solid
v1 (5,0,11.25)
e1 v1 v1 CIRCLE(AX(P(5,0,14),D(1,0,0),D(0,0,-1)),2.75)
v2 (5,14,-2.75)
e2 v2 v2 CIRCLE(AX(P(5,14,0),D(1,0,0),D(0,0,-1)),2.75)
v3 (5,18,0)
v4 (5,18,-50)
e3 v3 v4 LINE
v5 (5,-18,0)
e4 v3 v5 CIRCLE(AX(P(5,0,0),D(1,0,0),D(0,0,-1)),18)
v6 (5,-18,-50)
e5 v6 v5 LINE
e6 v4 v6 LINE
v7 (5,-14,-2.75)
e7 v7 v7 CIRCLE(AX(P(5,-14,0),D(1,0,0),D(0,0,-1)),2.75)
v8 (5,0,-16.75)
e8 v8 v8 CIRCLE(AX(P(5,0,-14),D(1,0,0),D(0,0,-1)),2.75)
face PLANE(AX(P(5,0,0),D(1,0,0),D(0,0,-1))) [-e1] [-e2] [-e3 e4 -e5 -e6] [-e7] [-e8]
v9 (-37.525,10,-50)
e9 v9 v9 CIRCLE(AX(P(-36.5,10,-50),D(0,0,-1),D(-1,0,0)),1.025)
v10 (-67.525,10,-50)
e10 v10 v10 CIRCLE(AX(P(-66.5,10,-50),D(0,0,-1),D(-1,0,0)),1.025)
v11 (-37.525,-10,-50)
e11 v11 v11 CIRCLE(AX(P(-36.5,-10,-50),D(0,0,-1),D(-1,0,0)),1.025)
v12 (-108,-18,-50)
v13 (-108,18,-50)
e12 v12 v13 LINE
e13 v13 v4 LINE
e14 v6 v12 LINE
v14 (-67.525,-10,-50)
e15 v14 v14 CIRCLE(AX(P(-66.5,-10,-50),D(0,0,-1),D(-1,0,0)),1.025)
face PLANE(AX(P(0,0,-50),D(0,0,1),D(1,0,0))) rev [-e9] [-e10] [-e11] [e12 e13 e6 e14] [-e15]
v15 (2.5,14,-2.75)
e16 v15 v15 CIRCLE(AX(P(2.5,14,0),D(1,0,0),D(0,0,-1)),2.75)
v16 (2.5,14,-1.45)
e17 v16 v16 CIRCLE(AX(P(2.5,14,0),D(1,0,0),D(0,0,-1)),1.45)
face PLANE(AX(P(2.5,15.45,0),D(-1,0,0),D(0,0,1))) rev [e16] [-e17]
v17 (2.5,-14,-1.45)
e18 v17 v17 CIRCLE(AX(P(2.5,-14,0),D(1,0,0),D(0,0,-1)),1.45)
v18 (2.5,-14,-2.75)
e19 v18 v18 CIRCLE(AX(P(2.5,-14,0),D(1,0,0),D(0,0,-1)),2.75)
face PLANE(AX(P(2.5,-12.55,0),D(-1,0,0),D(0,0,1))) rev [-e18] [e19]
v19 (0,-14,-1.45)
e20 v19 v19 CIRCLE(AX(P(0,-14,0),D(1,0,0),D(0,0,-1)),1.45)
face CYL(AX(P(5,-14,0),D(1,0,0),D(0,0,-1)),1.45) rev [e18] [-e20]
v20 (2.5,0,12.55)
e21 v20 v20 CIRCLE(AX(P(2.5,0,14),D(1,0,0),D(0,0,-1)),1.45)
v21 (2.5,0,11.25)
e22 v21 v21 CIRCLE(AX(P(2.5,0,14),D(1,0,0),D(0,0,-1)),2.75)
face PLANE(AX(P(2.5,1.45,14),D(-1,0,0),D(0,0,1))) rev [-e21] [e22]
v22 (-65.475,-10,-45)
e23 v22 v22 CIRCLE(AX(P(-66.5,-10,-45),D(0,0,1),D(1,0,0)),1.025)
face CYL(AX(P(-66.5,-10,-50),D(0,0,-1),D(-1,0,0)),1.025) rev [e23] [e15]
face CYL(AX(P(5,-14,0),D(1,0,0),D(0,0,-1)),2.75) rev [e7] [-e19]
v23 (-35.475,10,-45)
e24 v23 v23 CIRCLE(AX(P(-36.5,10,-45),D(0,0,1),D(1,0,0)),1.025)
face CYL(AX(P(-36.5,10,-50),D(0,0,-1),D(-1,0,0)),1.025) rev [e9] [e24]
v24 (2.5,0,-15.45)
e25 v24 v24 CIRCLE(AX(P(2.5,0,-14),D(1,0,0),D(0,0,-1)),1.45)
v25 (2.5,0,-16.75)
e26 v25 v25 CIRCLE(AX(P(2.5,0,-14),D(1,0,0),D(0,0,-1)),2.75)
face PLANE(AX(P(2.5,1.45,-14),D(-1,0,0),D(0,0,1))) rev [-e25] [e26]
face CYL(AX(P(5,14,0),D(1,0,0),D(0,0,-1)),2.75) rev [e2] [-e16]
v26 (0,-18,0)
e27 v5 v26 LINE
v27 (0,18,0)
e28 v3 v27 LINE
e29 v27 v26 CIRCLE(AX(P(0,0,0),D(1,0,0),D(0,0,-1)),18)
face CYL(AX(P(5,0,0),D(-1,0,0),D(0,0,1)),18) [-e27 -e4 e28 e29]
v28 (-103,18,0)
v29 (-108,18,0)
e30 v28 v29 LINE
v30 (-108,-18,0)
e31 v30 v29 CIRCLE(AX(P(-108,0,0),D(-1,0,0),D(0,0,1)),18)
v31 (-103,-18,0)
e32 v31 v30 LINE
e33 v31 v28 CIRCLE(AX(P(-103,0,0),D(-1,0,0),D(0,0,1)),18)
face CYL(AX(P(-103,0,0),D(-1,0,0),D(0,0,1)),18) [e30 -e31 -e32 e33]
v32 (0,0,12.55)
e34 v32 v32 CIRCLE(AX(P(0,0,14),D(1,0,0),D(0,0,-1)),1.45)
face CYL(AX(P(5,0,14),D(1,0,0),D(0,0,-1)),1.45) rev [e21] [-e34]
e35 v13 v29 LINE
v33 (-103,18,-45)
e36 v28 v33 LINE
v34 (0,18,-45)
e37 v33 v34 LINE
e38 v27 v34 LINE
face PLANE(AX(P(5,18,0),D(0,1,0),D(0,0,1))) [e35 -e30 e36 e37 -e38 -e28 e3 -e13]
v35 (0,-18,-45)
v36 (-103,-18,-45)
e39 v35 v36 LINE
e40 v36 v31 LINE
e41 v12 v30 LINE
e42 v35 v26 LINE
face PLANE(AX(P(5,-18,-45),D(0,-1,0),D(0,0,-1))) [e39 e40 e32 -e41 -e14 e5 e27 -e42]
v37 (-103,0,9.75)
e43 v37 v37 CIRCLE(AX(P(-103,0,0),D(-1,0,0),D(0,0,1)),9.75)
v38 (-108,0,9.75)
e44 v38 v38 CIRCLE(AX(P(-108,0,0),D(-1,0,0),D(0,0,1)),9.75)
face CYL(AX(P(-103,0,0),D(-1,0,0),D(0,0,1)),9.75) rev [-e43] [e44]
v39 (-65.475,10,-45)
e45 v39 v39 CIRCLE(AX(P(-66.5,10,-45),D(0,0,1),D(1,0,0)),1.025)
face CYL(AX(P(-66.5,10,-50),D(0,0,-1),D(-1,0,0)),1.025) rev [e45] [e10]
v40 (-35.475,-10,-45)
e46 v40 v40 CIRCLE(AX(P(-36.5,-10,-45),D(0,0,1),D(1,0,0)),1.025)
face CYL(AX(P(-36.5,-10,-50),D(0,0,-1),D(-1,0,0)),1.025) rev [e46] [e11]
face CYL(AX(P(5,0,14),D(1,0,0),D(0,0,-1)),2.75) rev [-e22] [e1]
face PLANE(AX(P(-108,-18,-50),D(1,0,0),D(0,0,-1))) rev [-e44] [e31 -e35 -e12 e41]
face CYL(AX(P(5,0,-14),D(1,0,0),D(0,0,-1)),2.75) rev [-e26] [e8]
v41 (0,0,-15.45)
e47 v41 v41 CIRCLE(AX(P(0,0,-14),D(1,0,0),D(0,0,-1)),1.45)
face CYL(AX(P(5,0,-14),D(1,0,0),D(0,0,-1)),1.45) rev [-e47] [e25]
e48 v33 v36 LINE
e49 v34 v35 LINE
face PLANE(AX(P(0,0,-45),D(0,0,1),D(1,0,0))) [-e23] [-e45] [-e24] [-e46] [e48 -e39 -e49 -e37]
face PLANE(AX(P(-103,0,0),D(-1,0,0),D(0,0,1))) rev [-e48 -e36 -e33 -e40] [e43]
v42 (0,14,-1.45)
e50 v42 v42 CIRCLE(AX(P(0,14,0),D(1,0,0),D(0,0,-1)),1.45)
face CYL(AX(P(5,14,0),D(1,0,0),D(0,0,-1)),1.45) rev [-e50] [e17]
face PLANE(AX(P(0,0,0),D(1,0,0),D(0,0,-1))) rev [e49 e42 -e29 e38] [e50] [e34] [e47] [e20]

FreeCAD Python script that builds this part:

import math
import FreeCAD as App
import Part
import Sketcher

V = App.Vector


def add_polygon(sketch, points):
    """Adds a closed chain of lines whose ends are joined by coincident constraints."""
    first, n = sketch.GeometryCount, len(points)
    for a, b in zip(points, points[1:] + points[:1]):
        sketch.addGeometry(Part.LineSegment(App.Vector(*a, 0), App.Vector(*b, 0)), False)
    for i in range(n):
        sketch.addConstraint(Sketcher.Constraint("Coincident", first + i, 2, first + (i + 1) % n, 1))

doc = App.newDocument("Part")
body = doc.addObject("PartDesign::Body", "Body")

sketch1 = doc.addObject("Sketcher::SketchObject", "Sketch")
body.addObject(sketch1)
sketch1.AttachmentSupport = (doc.YZ_Plane, [""])
sketch1.MapMode = "FlatFace"
sketch1.addGeometry(Part.LineSegment(V(18, -45, 0), V(18, 0, 0)), False)
sketch1.addGeometry(Part.ArcOfCircle(Part.Circle(V(0, 0, 0), V(0, 0, 1), 18), math.radians(0), math.radians(180)), False)
sketch1.addGeometry(Part.LineSegment(V(-18, 0, 0), V(-18, -45, 0)), False)
sketch1.addGeometry(Part.LineSegment(V(-18, -45, 0), V(18, -45, 0)), False)
sketch1.addConstraint(Sketcher.Constraint("Tangent", 0, 2, 1, 1))
sketch1.addConstraint(Sketcher.Constraint("Tangent", 1, 2, 2, 1))
sketch1.addConstraint(Sketcher.Constraint("Coincident", 2, 2, 3, 1))
sketch1.addConstraint(Sketcher.Constraint("Coincident", 3, 2, 0, 1))
sketch1.addConstraint(Sketcher.Constraint("Vertical", 0))
sketch1.addConstraint(Sketcher.Constraint("Vertical", 2))
sketch1.addConstraint(Sketcher.Constraint("Horizontal", 3))
sketch1.addConstraint(Sketcher.Constraint("Coincident", 1, 3, -1, 1))
sketch1.addConstraint(Sketcher.Constraint("Radius", 1, 18.0))
sketch1.addConstraint(Sketcher.Constraint("DistanceY", 0, 1, 0, 2, 45.0))
pad1 = doc.addObject("PartDesign::Pad", "Pad")
body.addObject(pad1)
pad1.Profile = sketch1
pad1.Length = 5

sketch2 = doc.addObject("Sketcher::SketchObject", "Sketch001")
body.addObject(sketch2)
sketch2.AttachmentSupport = (doc.YZ_Plane, [""])
sketch2.MapMode = "FlatFace"
sketch2.AttachmentOffset = App.Placement(V(0, 0, 5), App.Rotation())
sketch2.addGeometry(Part.Circle(V(14, 0, 0), V(0, 0, 1), 1.45), False)
sketch2.addGeometry(Part.Circle(V(0, -14, 0), V(0, 0, 1), 1.45), False)
sketch2.addGeometry(Part.Circle(V(-14, 0, 0), V(0, 0, 1), 1.45), False)
sketch2.addGeometry(Part.Circle(V(0, 14, 0), V(0, 0, 1), 1.45), False)
sketch2.addConstraint(Sketcher.Constraint("Equal", 0, 1))
sketch2.addConstraint(Sketcher.Constraint("Equal", 1, 2))
sketch2.addConstraint(Sketcher.Constraint("Equal", 2, 3))
sketch2.addConstraint(Sketcher.Constraint("Symmetric", 0, 3, 2, 3, -1, 1))
sketch2.addConstraint(Sketcher.Constraint("Symmetric", 1, 3, 3, 3, -1, 1))
sketch2.addConstraint(Sketcher.Constraint("PointOnObject", 0, 3, -1))
sketch2.addConstraint(Sketcher.Constraint("PointOnObject", 1, 3, -2))
sketch2.addConstraint(Sketcher.Constraint("Diameter", 0, 2.9))
sketch2.addConstraint(Sketcher.Constraint("DistanceX", -1, 1, 0, 3, 14.0))
sketch2.addConstraint(Sketcher.Constraint("DistanceY", 1, 3, -1, 1, 14.0))
doc.recompute()
hole = doc.addObject("PartDesign::Hole", "Hole")
body.addObject(hole)
hole.Profile = sketch2
hole.ThreadType = "None"
hole.Diameter = 2.9
hole.DepthType = "ThroughAll"
hole.HoleCutType = "Counterbore"
hole.HoleCutDiameter = 5.5
hole.HoleCutDepth = 2.5

sketch3 = doc.addObject("Sketcher::SketchObject", "Sketch002")
body.addObject(sketch3)
sketch3.AttachmentSupport = (doc.XY_Plane, [""])
sketch3.MapMode = "FlatFace"
sketch3.AttachmentOffset = App.Placement(V(0, 0, -45), App.Rotation())
add_polygon(sketch3, [(5, 18), (5, -18), (-108, -18), (-108, 18)])
sketch3.addConstraint(Sketcher.Constraint("Vertical", 0))
sketch3.addConstraint(Sketcher.Constraint("Horizontal", 1))
sketch3.addConstraint(Sketcher.Constraint("Vertical", 2))
sketch3.addConstraint(Sketcher.Constraint("Horizontal", 3))
sketch3.addConstraint(Sketcher.Constraint("DistanceX", 1, 2, 1, 1, 113.0))
sketch3.addConstraint(Sketcher.Constraint("DistanceY", 0, 2, 0, 1, 36.0))
sketch3.addConstraint(Sketcher.Constraint("DistanceX", -1, 1, 0, 2, 5.0))
sketch3.addConstraint(Sketcher.Constraint("DistanceY", 0, 2, -1, 1, 18.0))
pad2 = doc.addObject("PartDesign::Pad", "Pad001")
body.addObject(pad2)
pad2.Profile = sketch3
pad2.Length = 5
pad2.Reversed = True

sketch4 = doc.addObject("Sketcher::SketchObject", "Sketch003")
body.addObject(sketch4)
sketch4.AttachmentSupport = (doc.YZ_Plane, [""])
sketch4.MapMode = "FlatFace"
sketch4.AttachmentOffset = App.Placement(V(0, 0, -108), App.Rotation())
sketch4.addGeometry(Part.LineSegment(V(-18, -50, 0), V(-18, 0, 0)), False)
sketch4.addGeometry(Part.ArcOfCircle(Part.Circle(V(0, 0, 0), V(0, 0, 1), 18), math.radians(0), math.radians(180)), False)
sketch4.addGeometry(Part.LineSegment(V(18, 0, 0), V(18, -50, 0)), False)
sketch4.addGeometry(Part.LineSegment(V(18, -50, 0), V(-18, -50, 0)), False)
sketch4.addConstraint(Sketcher.Constraint("Tangent", 0, 2, 1, 2))
sketch4.addConstraint(Sketcher.Constraint("Tangent", 1, 1, 2, 1))
sketch4.addConstraint(Sketcher.Constraint("Coincident", 2, 2, 3, 1))
sketch4.addConstraint(Sketcher.Constraint("Coincident", 3, 2, 0, 1))
sketch4.addConstraint(Sketcher.Constraint("Vertical", 0))
sketch4.addConstraint(Sketcher.Constraint("Vertical", 2))
sketch4.addConstraint(Sketcher.Constraint("Horizontal", 3))
sketch4.addConstraint(Sketcher.Constraint("Coincident", 1, 3, -1, 1))
sketch4.addConstraint(Sketcher.Constraint("Radius", 1, 18.0))
sketch4.addConstraint(Sketcher.Constraint("DistanceY", 0, 1, 0, 2, 50.0))
pad3 = doc.addObject("PartDesign::Pad", "Pad002")
body.addObject(pad3)
pad3.Profile = sketch4
pad3.Length = 5

sketch5 = doc.addObject("Sketcher::SketchObject", "Sketch004")
body.addObject(sketch5)
sketch5.AttachmentSupport = (doc.YZ_Plane, [""])
sketch5.MapMode = "FlatFace"
sketch5.AttachmentOffset = App.Placement(V(0, 0, -108), App.Rotation())
sketch5.addGeometry(Part.Circle(V(0, 0, 0), V(0, 0, 1), 9.75), False)
sketch5.addConstraint(Sketcher.Constraint("Coincident", 0, 3, -1, 1))
sketch5.addConstraint(Sketcher.Constraint("Diameter", 0, 19.5))
pocket1 = doc.addObject("PartDesign::Pocket", "Pocket")
body.addObject(pocket1)
pocket1.Profile = sketch5
pocket1.Length = 5
pocket1.Reversed = True

sketch6 = doc.addObject("Sketcher::SketchObject", "Sketch005")
body.addObject(sketch6)
sketch6.AttachmentSupport = (doc.XY_Plane, [""])
sketch6.MapMode = "FlatFace"
sketch6.AttachmentOffset = App.Placement(V(0, 0, -50), App.Rotation())
sketch6.addGeometry(Part.Circle(V(-36.5, 10, 0), V(0, 0, 1), 1.025), False)
sketch6.addGeometry(Part.Circle(V(-66.5, 10, 0), V(0, 0, 1), 1.025), False)
sketch6.addGeometry(Part.Circle(V(-66.5, -10, 0), V(0, 0, 1), 1.025), False)
sketch6.addGeometry(Part.Circle(V(-36.5, -10, 0), V(0, 0, 1), 1.025), False)
sketch6.addConstraint(Sketcher.Constraint("Equal", 0, 1))
sketch6.addConstraint(Sketcher.Constraint("Equal", 1, 2))
sketch6.addConstraint(Sketcher.Constraint("Equal", 2, 3))
sketch6.addConstraint(Sketcher.Constraint("Symmetric", 1, 3, 2, 3, -1))
sketch6.addConstraint(Sketcher.Constraint("Symmetric", 0, 3, 3, 3, -1))
sketch6.addConstraint(Sketcher.Constraint("Horizontal", 0, 3, 1, 3))
sketch6.addConstraint(Sketcher.Constraint("Diameter", 0, 2.05))
sketch6.addConstraint(Sketcher.Constraint("DistanceY", -1, 1, 0, 3, 10.0))
sketch6.addConstraint(Sketcher.Constraint("DistanceX", 1, 3, 0, 3, 30.0))
sketch6.addConstraint(Sketcher.Constraint("DistanceX", 0, 3, -1, 1, 36.5))
doc.recompute()
hole2 = doc.addObject("PartDesign::Hole", "Hole001")
body.addObject(hole2)
hole2.Profile = sketch6
hole2.ThreadType = "None"
hole2.Diameter = 2.05
hole2.DepthType = "ThroughAll"
hole2.Reversed = True

doc.recompute()
